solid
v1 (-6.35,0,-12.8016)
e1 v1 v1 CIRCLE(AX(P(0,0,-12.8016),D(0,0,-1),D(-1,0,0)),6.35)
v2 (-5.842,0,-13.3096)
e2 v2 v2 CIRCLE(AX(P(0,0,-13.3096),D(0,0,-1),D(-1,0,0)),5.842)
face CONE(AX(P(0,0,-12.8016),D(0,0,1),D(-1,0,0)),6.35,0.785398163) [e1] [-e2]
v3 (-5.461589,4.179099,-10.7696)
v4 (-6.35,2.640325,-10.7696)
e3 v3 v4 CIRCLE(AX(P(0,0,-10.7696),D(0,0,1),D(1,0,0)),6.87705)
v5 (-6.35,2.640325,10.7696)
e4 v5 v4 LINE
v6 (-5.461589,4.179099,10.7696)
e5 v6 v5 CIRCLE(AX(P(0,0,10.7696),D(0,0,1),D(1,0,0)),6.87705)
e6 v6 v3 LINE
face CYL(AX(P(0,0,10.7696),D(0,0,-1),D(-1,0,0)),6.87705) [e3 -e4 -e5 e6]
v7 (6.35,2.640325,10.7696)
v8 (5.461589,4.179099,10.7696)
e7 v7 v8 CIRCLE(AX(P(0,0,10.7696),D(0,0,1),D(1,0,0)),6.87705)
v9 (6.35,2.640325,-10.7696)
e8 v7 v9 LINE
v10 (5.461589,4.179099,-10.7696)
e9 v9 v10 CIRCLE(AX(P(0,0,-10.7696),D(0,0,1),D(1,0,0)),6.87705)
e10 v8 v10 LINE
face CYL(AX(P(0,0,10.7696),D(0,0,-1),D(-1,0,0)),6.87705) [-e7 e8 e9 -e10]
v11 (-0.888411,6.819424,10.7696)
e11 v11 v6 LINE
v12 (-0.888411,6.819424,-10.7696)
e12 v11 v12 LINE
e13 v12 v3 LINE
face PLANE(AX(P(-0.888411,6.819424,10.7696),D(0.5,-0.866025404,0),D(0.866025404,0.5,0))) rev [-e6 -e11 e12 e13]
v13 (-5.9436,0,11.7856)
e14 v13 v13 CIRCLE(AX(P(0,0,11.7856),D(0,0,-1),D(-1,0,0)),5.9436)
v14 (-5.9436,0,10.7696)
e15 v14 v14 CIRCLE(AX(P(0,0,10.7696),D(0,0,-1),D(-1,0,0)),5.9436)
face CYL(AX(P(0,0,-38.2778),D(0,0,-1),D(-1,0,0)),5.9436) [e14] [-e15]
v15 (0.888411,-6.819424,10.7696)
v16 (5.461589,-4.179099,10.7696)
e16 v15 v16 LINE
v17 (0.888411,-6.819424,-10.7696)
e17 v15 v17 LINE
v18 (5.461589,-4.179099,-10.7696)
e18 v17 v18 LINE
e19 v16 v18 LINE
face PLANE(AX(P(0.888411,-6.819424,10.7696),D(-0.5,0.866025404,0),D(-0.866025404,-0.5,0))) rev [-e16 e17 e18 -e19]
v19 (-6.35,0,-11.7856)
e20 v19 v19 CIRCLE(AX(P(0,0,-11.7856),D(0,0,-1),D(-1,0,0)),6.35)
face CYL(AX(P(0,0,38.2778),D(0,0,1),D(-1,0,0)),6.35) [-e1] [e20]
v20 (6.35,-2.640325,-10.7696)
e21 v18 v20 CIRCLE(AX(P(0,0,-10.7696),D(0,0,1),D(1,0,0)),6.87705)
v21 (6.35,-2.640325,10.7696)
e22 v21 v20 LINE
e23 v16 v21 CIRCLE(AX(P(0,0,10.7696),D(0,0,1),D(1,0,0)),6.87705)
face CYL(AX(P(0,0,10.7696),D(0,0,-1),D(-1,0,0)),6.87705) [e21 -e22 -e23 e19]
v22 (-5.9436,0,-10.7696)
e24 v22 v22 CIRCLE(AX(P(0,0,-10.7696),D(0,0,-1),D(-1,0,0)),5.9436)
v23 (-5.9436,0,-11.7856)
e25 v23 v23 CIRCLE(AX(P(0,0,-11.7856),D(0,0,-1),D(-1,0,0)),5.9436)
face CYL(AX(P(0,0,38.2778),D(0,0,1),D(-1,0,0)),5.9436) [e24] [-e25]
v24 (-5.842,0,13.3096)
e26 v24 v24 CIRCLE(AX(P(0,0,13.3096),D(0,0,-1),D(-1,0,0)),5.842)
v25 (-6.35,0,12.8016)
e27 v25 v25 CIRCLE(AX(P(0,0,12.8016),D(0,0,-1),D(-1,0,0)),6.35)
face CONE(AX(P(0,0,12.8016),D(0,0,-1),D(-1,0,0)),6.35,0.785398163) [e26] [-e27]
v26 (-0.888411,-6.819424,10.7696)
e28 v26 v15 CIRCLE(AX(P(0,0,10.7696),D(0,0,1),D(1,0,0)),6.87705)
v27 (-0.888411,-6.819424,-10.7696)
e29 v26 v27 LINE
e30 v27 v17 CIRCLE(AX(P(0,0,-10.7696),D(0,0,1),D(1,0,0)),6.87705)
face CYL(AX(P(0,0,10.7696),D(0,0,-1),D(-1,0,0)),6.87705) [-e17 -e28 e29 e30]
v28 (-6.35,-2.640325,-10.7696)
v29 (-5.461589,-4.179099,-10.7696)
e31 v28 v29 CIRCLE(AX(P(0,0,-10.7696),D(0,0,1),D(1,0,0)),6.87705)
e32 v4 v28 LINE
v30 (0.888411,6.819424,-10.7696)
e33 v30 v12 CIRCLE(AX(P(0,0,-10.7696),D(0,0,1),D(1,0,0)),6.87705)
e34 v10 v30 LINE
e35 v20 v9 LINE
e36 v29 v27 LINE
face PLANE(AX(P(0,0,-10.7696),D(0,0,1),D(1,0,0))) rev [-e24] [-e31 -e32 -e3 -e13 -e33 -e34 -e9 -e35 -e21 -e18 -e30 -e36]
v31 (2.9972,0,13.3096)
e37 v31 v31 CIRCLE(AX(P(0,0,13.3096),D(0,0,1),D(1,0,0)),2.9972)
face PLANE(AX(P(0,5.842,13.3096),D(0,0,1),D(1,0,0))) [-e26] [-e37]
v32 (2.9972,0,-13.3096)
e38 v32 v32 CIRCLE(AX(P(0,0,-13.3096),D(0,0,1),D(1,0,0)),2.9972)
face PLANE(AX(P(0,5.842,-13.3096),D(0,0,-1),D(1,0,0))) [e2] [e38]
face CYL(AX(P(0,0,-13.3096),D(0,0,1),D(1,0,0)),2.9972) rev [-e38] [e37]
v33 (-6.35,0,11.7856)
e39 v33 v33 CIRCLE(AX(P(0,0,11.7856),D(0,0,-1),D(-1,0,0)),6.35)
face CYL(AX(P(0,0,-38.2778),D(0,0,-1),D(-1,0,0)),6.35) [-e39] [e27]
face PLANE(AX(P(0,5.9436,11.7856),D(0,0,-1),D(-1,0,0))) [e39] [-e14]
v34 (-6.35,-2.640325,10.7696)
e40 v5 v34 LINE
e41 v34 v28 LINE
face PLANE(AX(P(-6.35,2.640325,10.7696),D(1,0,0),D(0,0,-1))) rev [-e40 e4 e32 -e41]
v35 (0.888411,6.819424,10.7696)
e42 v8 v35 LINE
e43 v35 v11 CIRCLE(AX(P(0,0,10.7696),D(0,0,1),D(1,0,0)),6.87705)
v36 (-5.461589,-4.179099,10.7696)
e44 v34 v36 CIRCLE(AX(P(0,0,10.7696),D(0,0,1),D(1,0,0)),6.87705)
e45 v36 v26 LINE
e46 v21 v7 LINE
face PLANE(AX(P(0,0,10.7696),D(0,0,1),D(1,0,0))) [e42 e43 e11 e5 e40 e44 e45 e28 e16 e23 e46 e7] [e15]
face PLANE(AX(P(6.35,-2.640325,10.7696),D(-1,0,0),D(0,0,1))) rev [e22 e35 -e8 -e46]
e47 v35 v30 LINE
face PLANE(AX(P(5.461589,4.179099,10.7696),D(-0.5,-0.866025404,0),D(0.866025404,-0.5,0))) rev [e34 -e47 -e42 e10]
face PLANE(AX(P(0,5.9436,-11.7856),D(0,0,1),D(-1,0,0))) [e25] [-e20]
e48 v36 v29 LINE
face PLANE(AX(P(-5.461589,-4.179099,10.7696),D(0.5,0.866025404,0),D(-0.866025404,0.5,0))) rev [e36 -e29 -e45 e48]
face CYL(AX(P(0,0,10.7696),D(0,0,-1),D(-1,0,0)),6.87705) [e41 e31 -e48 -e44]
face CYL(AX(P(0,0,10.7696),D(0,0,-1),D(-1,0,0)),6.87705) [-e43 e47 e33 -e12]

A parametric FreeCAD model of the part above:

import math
import FreeCAD as App
import Part
import Sketcher
Q = App.Units.Quantity

doc = App.newDocument("Part")
params = doc.addObject("Spreadsheet::Sheet", "Params")
for row, (alias, value) in enumerate([
    ("sketch1_diameter", "0.5 in"),
    ("pad1_length", "0.424 in"),
    ("pad1_length2", "0.424 in"),
    ("pad2_length", "0.848 in"),
    ("sketch3_height", "0.1 in"),
    ("sketch3_width", "0.23 in"),
    ("sketch3_height2", "0.04 in"),
    ("sketch3_width2", "0.016 in"),
    ("revolution_angle", "360 deg"),
    ("sketch4_diameter", "0.236 in"),
], start=1):
    params.set(f"A{row}", alias)
    params.set(f"B{row}", "=" + value)
    params.setAlias(f"B{row}", alias)

body = doc.addObject("PartDesign::Body", "Body")

# Sketch on XY plane
sketch1 = body.newObject("Sketcher::SketchObject", "Sketch")
sketch1.AttachmentSupport = (doc.getObject("XY_Plane"), [""])
sketch1.MapMode = "FlatFace"
sketch1.addGeometry(Part.Circle(App.Vector(0, 0, 0), App.Vector(0, 0, 1), 6), False)
sketch1.addConstraint([
    Sketcher.Constraint("Coincident", 0, 3, -1, 1),
    Sketcher.Constraint("Diameter", 0, Q("0.5 in")),
])
sketch1.setExpression("Constraints[1]", "Params.sketch1_diameter")
pad1 = body.newObject("PartDesign::Pad", "Pad")
pad1.Profile = sketch1
pad1.Type = "TwoLengths"
pad1.setExpression("Length", "Params.pad1_length")
pad1.setExpression("Length2", "Params.pad1_length2")

# Sketch on XY plane
sketch2 = body.newObject("Sketcher::SketchObject", "Sketch001")
sketch2.AttachmentSupport = (doc.getObject("XY_Plane"), [""])
sketch2.MapMode = "FlatFace"
sketch2.addGeometry([
    Part.LineSegment(App.Vector(-0.9, 6.8, 0), App.Vector(-5.5, 4.2, 0)),  # 0
    Part.ArcOfCircle(Part.Circle(App.Vector(0, 0, 0), App.Vector(0, 0, 1), 6.9), math.radians(142.58), math.radians(157.42)),  # 1
    Part.LineSegment(App.Vector(-6.3, 2.6, 0), App.Vector(-6.3, -2.6, 0)),  # 2
    Part.ArcOfCircle(Part.Circle(App.Vector(0, 0, 0), App.Vector(0, 0, 1), 6.9), math.radians(-157.42), math.radians(-142.58)),  # 3
    Part.LineSegment(App.Vector(-5.5, -4.2, 0), App.Vector(-0.9, -6.8, 0)),  # 4
    Part.ArcOfCircle(Part.Circle(App.Vector(0, 0, 0), App.Vector(0, 0, 1), 6.9), math.radians(-97.42), math.radians(-82.58)),  # 5
    Part.LineSegment(App.Vector(0.9, -6.8, 0), App.Vector(5.5, -4.2, 0)),  # 6
    Part.ArcOfCircle(Part.Circle(App.Vector(0, 0, 0), App.Vector(0, 0, 1), 6.9), math.radians(-37.42), math.radians(-22.58)),  # 7
    Part.LineSegment(App.Vector(6.3, -2.6, 0), App.Vector(6.3, 2.6, 0)),  # 8
    Part.ArcOfCircle(Part.Circle(App.Vector(0, 0, 0), App.Vector(0, 0, 1), 6.9), math.radians(22.58), math.radians(37.42)),  # 9
    Part.LineSegment(App.Vector(5.5, 4.2, 0), App.Vector(0.9, 6.8, 0)),  # 10
    Part.ArcOfCircle(Part.Circle(App.Vector(0, 0, 0), App.Vector(0, 0, 1), 6.9), math.radians(82.58), math.radians(97.42)),  # 11
], False)
sketch2.addConstraint([
    Sketcher.Constraint("Coincident", 0, 2, 1, 1),
    Sketcher.Constraint("Coincident", 1, 2, 2, 1),
    Sketcher.Constraint("Coincident", 2, 2, 3, 1),
    Sketcher.Constraint("Coincident", 3, 2, 4, 1),
    Sketcher.Constraint("Coincident", 4, 2, 5, 1),
    Sketcher.Constraint("Coincident", 5, 2, 6, 1),
    Sketcher.Constraint("Coincident", 6, 2, 7, 1),
    Sketcher.Constraint("Coincident", 7, 2, 8, 1),
    Sketcher.Constraint("Coincident", 8, 2, 9, 1),
    Sketcher.Constraint("Coincident", 9, 2, 10, 1),
    Sketcher.Constraint("Coincident", 10, 2, 11, 1),
    Sketcher.Constraint("Coincident", 11, 2, 0, 1),
    Sketcher.Constraint("Vertical", 2),
    Sketcher.Constraint("Vertical", 8),
    Sketcher.Constraint("Coincident", 1, 3, -1, 1),
    Sketcher.Constraint("Coincident", 3, 3, -1, 1),
    Sketcher.Constraint("Coincident", 5, 3, -1, 1),
    Sketcher.Constraint("Coincident", 7, 3, -1, 1),
    Sketcher.Constraint("Coincident", 9, 3, -1, 1),
    Sketcher.Constraint("Coincident", 11, 3, -1, 1),
    Sketcher.Constraint("Equal", 1, 3),
    Sketcher.Constraint("Equal", 3, 5),
    Sketcher.Constraint("Equal", 5, 7),
    Sketcher.Constraint("Equal", 7, 9),
    Sketcher.Constraint("Equal", 9, 11),
    Sketcher.Constraint("Parallel", 0, 6),
    Sketcher.Constraint("Parallel", 4, 10),
    Sketcher.Constraint("Horizontal", 4, 2, 5, 2),
    Sketcher.Constraint("Horizontal", 3, 2, 6, 2),
    Sketcher.Constraint("Horizontal", 2, 2, 7, 2),
    Sketcher.Constraint("Horizontal", 0, 2, 9, 2),
    Sketcher.Constraint("Vertical", 0, 2, 3, 2),
    Sketcher.Constraint("Angle", 0, Q("-150 deg")),
    Sketcher.Constraint("DistanceX", 1, 2, -1, 1, Q("0.25 in")),
    Sketcher.Constraint("DistanceX", 3, 2, 5, 2, Q("0.25 in")),
    Sketcher.Constraint("Radius", 1, Q("6.87705 mm")),
])
pad2 = body.newObject("PartDesign::Pad", "Pad001")
pad2.Profile = sketch2
pad2.setExpression("Length", "Params.pad2_length")
pad2.Midplane = True

# Sketch on YZ plane
sketch3 = body.newObject("Sketcher::SketchObject", "Sketch002")
sketch3.AttachmentSupport = (doc.getObject("YZ_Plane"), [""])
sketch3.MapMode = "FlatFace"
sketch3.addGeometry([
    Part.LineSegment(App.Vector(5.94, 10.77, 0), App.Vector(5.94, 11.79, 0)),  # 0
    Part.LineSegment(App.Vector(5.94, 11.79, 0), App.Vector(6.35, 11.79, 0)),  # 1
    Part.LineSegment(App.Vector(6.35, 11.79, 0), App.Vector(6.35, 12.8, 0)),  # 2
    Part.LineSegment(App.Vector(6.35, 12.8, 0), App.Vector(5.84, 13.31, 0)),  # 3
    Part.LineSegment(App.Vector(5.84, 13.31, 0), App.Vector(0, 13.31, 0)),  # 4
    Part.LineSegment(App.Vector(0, 13.31, 0), App.Vector(0, 10.77, 0)),  # 5
    Part.LineSegment(App.Vector(0, 10.77, 0), App.Vector(5.94, 10.77, 0)),  # 6
], False)
sketch3.addConstraint([
    Sketcher.Constraint("Coincident", 0, 2, 1, 1),
    Sketcher.Constraint("Coincident", 1, 2, 2, 1),
    Sketcher.Constraint("Coincident", 2, 2, 3, 1),
    Sketcher.Constraint("Coincident", 3, 2, 4, 1),
    Sketcher.Constraint("Coincident", 4, 2, 5, 1),
    Sketcher.Constraint("Coincident", 5, 2, 6, 1),
    Sketcher.Constraint("Coincident", 6, 2, 0, 1),
    Sketcher.Constraint("Vertical", 0),
    Sketcher.Constraint("Horizontal", 1),
    Sketcher.Constraint("Vertical", 2),
    Sketcher.Constraint("Horizontal", 4),
    Sketcher.Constraint("Vertical", 5),
    Sketcher.Constraint("Horizontal", 6),
    Sketcher.Constraint("PointOnObject", 4, 2, -2),
    Sketcher.Constraint("Equal", 0, 2),
    Sketcher.Constraint("DistanceY", 5, 2, 5, 1, Q("0.1 in")),
    Sketcher.Constraint("Angle", 3, Q("135 deg")),
    Sketcher.Constraint("DistanceX", 4, 2, 4, 1, Q("0.23 in")),
    Sketcher.Constraint("DistanceY", 0, 1, 0, 2, Q("0.04 in")),
    Sketcher.Constraint("DistanceX", 1, 1, 1, 2, Q("0.016 in")),
    Sketcher.Constraint("DistanceY", -1, 1, 0, 2, Q("0.464 in")),
])
sketch3.setExpression("Constraints[15]", "Params.sketch3_height")
sketch3.setExpression("Constraints[17]", "Params.sketch3_width")
sketch3.setExpression("Constraints[18]", "Params.sketch3_height2")
sketch3.setExpression("Constraints[19]", "Params.sketch3_width2")
revolution = body.newObject("PartDesign::Revolution", "Revolution")
revolution.Profile = sketch3
revolution.ReferenceAxis = (sketch3, ["V_Axis"])
revolution.setExpression("Angle", "Params.revolution_angle")
doc.recompute()

mirrored = body.newObject("PartDesign::Mirrored", "Mirrored")
mirrored.Originals = [revolution]
mirrored.MirrorPlane = (doc.getObject("XY_Plane"), [""])
body.Tip = mirrored

# Sketch on XY plane
sketch4 = body.newObject("Sketcher::SketchObject", "Sketch003")
sketch4.AttachmentSupport = (doc.getObject("XY_Plane"), [""])
sketch4.MapMode = "FlatFace"
sketch4.addGeometry(Part.Circle(App.Vector(0, 0, 0), App.Vector(0, 0, 1), 3), False)
sketch4.addConstraint([
    Sketcher.Constraint("Coincident", 0, 3, -1, 1),
    Sketcher.Constraint("Diameter", 0, Q("0.236 in")),
])
sketch4.setExpression("Constraints[1]", "Params.sketch4_diameter")
pocket1 = body.newObject("PartDesign::Pocket", "Pocket")
pocket1.Profile = sketch4
pocket1.Type = "ThroughAll"
pocket1.Midplane = True

doc.recompute()
